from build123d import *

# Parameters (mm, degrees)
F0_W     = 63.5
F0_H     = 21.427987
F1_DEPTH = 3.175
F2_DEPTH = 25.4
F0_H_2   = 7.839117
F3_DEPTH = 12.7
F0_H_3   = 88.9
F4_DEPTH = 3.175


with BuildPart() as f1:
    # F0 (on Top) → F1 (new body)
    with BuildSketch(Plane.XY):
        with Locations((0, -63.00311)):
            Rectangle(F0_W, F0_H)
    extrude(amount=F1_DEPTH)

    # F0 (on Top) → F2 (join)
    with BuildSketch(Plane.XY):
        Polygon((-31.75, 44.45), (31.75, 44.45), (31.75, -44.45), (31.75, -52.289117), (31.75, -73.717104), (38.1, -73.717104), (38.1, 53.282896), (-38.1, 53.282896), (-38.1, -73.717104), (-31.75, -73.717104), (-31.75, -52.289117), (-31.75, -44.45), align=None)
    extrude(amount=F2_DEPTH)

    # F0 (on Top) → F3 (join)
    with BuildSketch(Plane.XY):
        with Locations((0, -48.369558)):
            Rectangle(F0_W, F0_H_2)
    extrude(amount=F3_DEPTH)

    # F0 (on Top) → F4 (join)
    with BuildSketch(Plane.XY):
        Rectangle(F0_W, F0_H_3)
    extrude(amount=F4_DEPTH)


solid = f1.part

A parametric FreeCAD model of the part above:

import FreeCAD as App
import Part
import Sketcher

V = App.Vector
Q = App.Units.Quantity


def add_polygon(sketch, points):
    """Adds a closed chain of lines whose ends are joined by coincident constraints."""
    first, n = sketch.GeometryCount, len(points)
    for a, b in zip(points, points[1:] + points[:1]):
        sketch.addGeometry(Part.LineSegment(App.Vector(*a, 0), App.Vector(*b, 0)), False)
    for i in range(n):
        sketch.addConstraint(Sketcher.Constraint("Coincident", first + i, 2, first + (i + 1) % n, 1))

doc = App.newDocument("Part")
params = doc.addObject("Spreadsheet::Sheet", "Params")
for row, (alias, value) in enumerate([
    ("sketch1_width", "2.5 in"),
    ("pad1_length", "0.125 in"),
    ("sketch2_width", "3 in"),
    ("sketch2_height", "5 in"),
    ("sketch2_width2", "2.5 in"),
    ("pad2_length", "1 in"),
    ("sketch3_width", "2.5 in"),
    ("pad3_length", "0.5 in"),
    ("sketch4_width", "2.5 in"),
    ("sketch4_height", "3.5 in"),
    ("pad4_length", "0.125 in"),
], start=1):
    params.set(f"A{row}", alias)
    params.set(f"B{row}", "=" + value)
    params.setAlias(f"B{row}", alias)

body = doc.addObject("PartDesign::Body", "Body")

# Sketch on XY plane
sketch1 = body.newObject("Sketcher::SketchObject", "Sketch")
sketch1.AttachmentSupport = (doc.getObject("XY_Plane"), [""])
sketch1.MapMode = "FlatFace"
add_polygon(sketch1, [(-32, -52), (-32, -74), (32, -74), (32, -52)])  # lines 0-3
sketch1.addConstraint(Sketcher.Constraint("Vertical", 0))
sketch1.addConstraint(Sketcher.Constraint("Horizontal", 1))
sketch1.addConstraint(Sketcher.Constraint("Vertical", 2))
sketch1.addConstraint(Sketcher.Constraint("Horizontal", 3))
sketch1.addConstraint(Sketcher.Constraint("DistanceX", 1, 1, 1, 2, Q("2.5 in")))
sketch1.addConstraint(Sketcher.Constraint("DistanceX", 0, 2, -1, 1, Q("1.25 in")))
sketch1.addConstraint(Sketcher.Constraint("DistanceY", 0, 2, 0, 1, Q("21.427987 mm")))
sketch1.addConstraint(Sketcher.Constraint("DistanceY", 0, 2, -1, 1, Q("73.717103 mm")))
sketch1.setExpression("Constraints[8]", "Params.sketch1_width")
pad1 = body.newObject("PartDesign::Pad", "Pad")
pad1.Profile = sketch1
pad1.setExpression("Length", "Params.pad1_length")

# Sketch on XY plane
sketch2 = body.newObject("Sketcher::SketchObject", "Sketch001")
sketch2.AttachmentSupport = (doc.getObject("XY_Plane"), [""])
sketch2.MapMode = "FlatFace"
add_polygon(sketch2, [(-32, 44), (32, 44), (32, -74), (38, -74), (38, 53), (-38, 53), (-38, -74), (-32, -74)])  # lines 0-7
sketch2.addConstraint(Sketcher.Constraint("Horizontal", 0))
sketch2.addConstraint(Sketcher.Constraint("Vertical", 1))
sketch2.addConstraint(Sketcher.Constraint("Horizontal", 2))
sketch2.addConstraint(Sketcher.Constraint("Vertical", 3))
sketch2.addConstraint(Sketcher.Constraint("Horizontal", 4))
sketch2.addConstraint(Sketcher.Constraint("Vertical", 5))
sketch2.addConstraint(Sketcher.Constraint("Horizontal", 6))
sketch2.addConstraint(Sketcher.Constraint("Vertical", 7))
sketch2.addConstraint(Sketcher.Constraint("Symmetric", 2, 2, 5, 2, -2))
sketch2.addConstraint(Sketcher.Constraint("Equal", 2, 6))
sketch2.addConstraint(Sketcher.Constraint("DistanceX", 4, 2, 4, 1, Q("3 in")))
sketch2.addConstraint(Sketcher.Constraint("DistanceY", 3, 1, 3, 2, Q("5 in")))
sketch2.addConstraint(Sketcher.Constraint("DistanceX", 0, 1, 0, 2, Q("2.5 in")))
sketch2.addConstraint(Sketcher.Constraint("DistanceY", -1, 1, 0, 2, Q("1.75 in")))
sketch2.addConstraint(Sketcher.Constraint("DistanceY", 1, 2, 1, 1, Q("118.167104 mm")))
sketch2.setExpression("Constraints[18]", "Params.sketch2_width")
sketch2.setExpression("Constraints[19]", "Params.sketch2_height")
sketch2.setExpression("Constraints[20]", "Params.sketch2_width2")
pad2 = body.newObject("PartDesign::Pad", "Pad001")
pad2.Profile = sketch2
pad2.setExpression("Length", "Params.pad2_length")

# Sketch on XY plane
sketch3 = body.newObject("Sketcher::SketchObject", "Sketch002")
sketch3.AttachmentSupport = (doc.getObject("XY_Plane"), [""])
sketch3.MapMode = "FlatFace"
add_polygon(sketch3, [(-32, -44), (-32, -52), (32, -52), (32, -44)])  # lines 0-3
sketch3.addConstraint(Sketcher.Constraint("Vertical", 0))
sketch3.addConstraint(Sketcher.Constraint("Horizontal", 1))
sketch3.addConstraint(Sketcher.Constraint("Vertical", 2))
sketch3.addConstraint(Sketcher.Constraint("Horizontal", 3))
sketch3.addConstraint(Sketcher.Constraint("DistanceX", 1, 1, 1, 2, Q("2.5 in")))
sketch3.addConstraint(Sketcher.Constraint("DistanceX", 0, 2, -1, 1, Q("1.25 in")))
sketch3.addConstraint(Sketcher.Constraint("DistanceY", 2, 2, -1, 1, Q("1.75 in")))
sketch3.addConstraint(Sketcher.Constraint("DistanceY", 0, 2, 0, 1, Q("7.839117 mm")))
sketch3.setExpression("Constraints[8]", "Params.sketch3_width")
pad3 = body.newObject("PartDesign::Pad", "Pad002")
pad3.Profile = sketch3
pad3.setExpression("Length", "Params.pad3_length")

# Sketch on XY plane
sketch4 = body.newObject("Sketcher::SketchObject", "Sketch003")
sketch4.AttachmentSupport = (doc.getObject("XY_Plane"), [""])
sketch4.MapMode = "FlatFace"
add_polygon(sketch4, [(-32, 44), (-32, -44), (32, -44), (32, 44)])  # lines 0-3
sketch4.addConstraint(Sketcher.Constraint("Vertical", 0))
sketch4.addConstraint(Sketcher.Constraint("Horizontal", 1))
sketch4.addConstraint(Sketcher.Constraint("Vertical", 2))
sketch4.addConstraint(Sketcher.Constraint("Horizontal", 3))
sketch4.addConstraint(Sketcher.Constraint("Symmetric", 0, 2, 2, 2, -1, 1))
sketch4.addConstraint(Sketcher.Constraint("DistanceX", 1, 1, 1, 2, Q("2.5 in")))
sketch4.addConstraint(Sketcher.Constraint("DistanceY", 0, 2, 0, 1, Q("3.5 in")))
sketch4.setExpression("Constraints[9]", "Params.sketch4_width")
sketch4.setExpression("Constraints[10]", "Params.sketch4_height")
pad4 = body.newObject("PartDesign::Pad", "Pad003")
pad4.Profile = sketch4
pad4.setExpression("Length", "Params.pad4_length")

doc.recompute()
